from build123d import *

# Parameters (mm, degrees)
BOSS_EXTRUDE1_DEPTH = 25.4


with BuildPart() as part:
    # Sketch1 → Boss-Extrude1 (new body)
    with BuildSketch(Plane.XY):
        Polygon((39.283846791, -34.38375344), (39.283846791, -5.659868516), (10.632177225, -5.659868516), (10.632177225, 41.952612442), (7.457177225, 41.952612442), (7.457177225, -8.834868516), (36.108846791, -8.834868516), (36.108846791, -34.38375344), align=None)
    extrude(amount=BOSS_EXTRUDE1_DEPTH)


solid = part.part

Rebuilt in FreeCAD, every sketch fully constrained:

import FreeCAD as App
import Part
import Sketcher

V = App.Vector
Q = App.Units.Quantity


def add_polygon(sketch, points):
    """Adds a closed chain of lines whose ends are joined by coincident constraints."""
    first, n = sketch.GeometryCount, len(points)
    for a, b in zip(points, points[1:] + points[:1]):
        sketch.addGeometry(Part.LineSegment(App.Vector(*a, 0), App.Vector(*b, 0)), False)
    for i in range(n):
        sketch.addConstraint(Sketcher.Constraint("Coincident", first + i, 2, first + (i + 1) % n, 1))

doc = App.newDocument("Part")
params = doc.addObject("Spreadsheet::Sheet", "Params")
for row, (alias, value) in enumerate([
    ("sketch1_width", "0.125 in"),
    ("pad1_length", "1 in"),
], start=1):
    params.set(f"A{row}", alias)
    params.set(f"B{row}", "=" + value)
    params.setAlias(f"B{row}", alias)

body = doc.addObject("PartDesign::Body", "Body")

sketch1 = body.newObject("Sketcher::SketchObject", "Sketch")
sketch1.AttachmentSupport = (doc.getObject("XY_Plane"), [""])
sketch1.MapMode = "FlatFace"
add_polygon(sketch1, [(39.3, -34.4), (39.3, -5.7), (10.6, -5.7), (10.6, 42), (7.5, 42), (7.5, -8.8), (36.1, -8.8), (36.1, -34.4)])
sketch1.addConstraint([
    Sketcher.Constraint("Vertical", 0),
    Sketcher.Constraint("Horizontal", 1),
    Sketcher.Constraint("Vertical", 2),
    Sketcher.Constraint("Horizontal", 3),
    Sketcher.Constraint("Vertical", 4),
    Sketcher.Constraint("Horizontal", 5),
    Sketcher.Constraint("Vertical", 6),
    Sketcher.Constraint("Horizontal", 7),
    Sketcher.Constraint("Equal", 1, 5),
    Sketcher.Constraint("DistanceX", 3, 2, 3, 1, Q("0.125 in")),
    Sketcher.Constraint("DistanceY", 4, 2, 1, 2, Q("0.125 in")),
    Sketcher.Constraint("DistanceX", 1, 2, 1, 1, 28.65167),
    Sketcher.Constraint("DistanceY", 2, 1, 2, 2, 47.612481),
    Sketcher.Constraint("DistanceY", 0, 1, 0, 2, 28.723885),
    Sketcher.Constraint("DistanceY", 0, 2, -1, 1, 5.659869),
    Sketcher.Constraint("DistanceX", -1, 1, 0, 2, 39.283847),
])
sketch1.setExpression("Constraints[17]", "Params.sketch1_width")
pad1 = body.newObject("PartDesign::Pad", "Pad")
pad1.Profile = sketch1
pad1.setExpression("Length", "Params.pad1_length")

doc.recompute()
